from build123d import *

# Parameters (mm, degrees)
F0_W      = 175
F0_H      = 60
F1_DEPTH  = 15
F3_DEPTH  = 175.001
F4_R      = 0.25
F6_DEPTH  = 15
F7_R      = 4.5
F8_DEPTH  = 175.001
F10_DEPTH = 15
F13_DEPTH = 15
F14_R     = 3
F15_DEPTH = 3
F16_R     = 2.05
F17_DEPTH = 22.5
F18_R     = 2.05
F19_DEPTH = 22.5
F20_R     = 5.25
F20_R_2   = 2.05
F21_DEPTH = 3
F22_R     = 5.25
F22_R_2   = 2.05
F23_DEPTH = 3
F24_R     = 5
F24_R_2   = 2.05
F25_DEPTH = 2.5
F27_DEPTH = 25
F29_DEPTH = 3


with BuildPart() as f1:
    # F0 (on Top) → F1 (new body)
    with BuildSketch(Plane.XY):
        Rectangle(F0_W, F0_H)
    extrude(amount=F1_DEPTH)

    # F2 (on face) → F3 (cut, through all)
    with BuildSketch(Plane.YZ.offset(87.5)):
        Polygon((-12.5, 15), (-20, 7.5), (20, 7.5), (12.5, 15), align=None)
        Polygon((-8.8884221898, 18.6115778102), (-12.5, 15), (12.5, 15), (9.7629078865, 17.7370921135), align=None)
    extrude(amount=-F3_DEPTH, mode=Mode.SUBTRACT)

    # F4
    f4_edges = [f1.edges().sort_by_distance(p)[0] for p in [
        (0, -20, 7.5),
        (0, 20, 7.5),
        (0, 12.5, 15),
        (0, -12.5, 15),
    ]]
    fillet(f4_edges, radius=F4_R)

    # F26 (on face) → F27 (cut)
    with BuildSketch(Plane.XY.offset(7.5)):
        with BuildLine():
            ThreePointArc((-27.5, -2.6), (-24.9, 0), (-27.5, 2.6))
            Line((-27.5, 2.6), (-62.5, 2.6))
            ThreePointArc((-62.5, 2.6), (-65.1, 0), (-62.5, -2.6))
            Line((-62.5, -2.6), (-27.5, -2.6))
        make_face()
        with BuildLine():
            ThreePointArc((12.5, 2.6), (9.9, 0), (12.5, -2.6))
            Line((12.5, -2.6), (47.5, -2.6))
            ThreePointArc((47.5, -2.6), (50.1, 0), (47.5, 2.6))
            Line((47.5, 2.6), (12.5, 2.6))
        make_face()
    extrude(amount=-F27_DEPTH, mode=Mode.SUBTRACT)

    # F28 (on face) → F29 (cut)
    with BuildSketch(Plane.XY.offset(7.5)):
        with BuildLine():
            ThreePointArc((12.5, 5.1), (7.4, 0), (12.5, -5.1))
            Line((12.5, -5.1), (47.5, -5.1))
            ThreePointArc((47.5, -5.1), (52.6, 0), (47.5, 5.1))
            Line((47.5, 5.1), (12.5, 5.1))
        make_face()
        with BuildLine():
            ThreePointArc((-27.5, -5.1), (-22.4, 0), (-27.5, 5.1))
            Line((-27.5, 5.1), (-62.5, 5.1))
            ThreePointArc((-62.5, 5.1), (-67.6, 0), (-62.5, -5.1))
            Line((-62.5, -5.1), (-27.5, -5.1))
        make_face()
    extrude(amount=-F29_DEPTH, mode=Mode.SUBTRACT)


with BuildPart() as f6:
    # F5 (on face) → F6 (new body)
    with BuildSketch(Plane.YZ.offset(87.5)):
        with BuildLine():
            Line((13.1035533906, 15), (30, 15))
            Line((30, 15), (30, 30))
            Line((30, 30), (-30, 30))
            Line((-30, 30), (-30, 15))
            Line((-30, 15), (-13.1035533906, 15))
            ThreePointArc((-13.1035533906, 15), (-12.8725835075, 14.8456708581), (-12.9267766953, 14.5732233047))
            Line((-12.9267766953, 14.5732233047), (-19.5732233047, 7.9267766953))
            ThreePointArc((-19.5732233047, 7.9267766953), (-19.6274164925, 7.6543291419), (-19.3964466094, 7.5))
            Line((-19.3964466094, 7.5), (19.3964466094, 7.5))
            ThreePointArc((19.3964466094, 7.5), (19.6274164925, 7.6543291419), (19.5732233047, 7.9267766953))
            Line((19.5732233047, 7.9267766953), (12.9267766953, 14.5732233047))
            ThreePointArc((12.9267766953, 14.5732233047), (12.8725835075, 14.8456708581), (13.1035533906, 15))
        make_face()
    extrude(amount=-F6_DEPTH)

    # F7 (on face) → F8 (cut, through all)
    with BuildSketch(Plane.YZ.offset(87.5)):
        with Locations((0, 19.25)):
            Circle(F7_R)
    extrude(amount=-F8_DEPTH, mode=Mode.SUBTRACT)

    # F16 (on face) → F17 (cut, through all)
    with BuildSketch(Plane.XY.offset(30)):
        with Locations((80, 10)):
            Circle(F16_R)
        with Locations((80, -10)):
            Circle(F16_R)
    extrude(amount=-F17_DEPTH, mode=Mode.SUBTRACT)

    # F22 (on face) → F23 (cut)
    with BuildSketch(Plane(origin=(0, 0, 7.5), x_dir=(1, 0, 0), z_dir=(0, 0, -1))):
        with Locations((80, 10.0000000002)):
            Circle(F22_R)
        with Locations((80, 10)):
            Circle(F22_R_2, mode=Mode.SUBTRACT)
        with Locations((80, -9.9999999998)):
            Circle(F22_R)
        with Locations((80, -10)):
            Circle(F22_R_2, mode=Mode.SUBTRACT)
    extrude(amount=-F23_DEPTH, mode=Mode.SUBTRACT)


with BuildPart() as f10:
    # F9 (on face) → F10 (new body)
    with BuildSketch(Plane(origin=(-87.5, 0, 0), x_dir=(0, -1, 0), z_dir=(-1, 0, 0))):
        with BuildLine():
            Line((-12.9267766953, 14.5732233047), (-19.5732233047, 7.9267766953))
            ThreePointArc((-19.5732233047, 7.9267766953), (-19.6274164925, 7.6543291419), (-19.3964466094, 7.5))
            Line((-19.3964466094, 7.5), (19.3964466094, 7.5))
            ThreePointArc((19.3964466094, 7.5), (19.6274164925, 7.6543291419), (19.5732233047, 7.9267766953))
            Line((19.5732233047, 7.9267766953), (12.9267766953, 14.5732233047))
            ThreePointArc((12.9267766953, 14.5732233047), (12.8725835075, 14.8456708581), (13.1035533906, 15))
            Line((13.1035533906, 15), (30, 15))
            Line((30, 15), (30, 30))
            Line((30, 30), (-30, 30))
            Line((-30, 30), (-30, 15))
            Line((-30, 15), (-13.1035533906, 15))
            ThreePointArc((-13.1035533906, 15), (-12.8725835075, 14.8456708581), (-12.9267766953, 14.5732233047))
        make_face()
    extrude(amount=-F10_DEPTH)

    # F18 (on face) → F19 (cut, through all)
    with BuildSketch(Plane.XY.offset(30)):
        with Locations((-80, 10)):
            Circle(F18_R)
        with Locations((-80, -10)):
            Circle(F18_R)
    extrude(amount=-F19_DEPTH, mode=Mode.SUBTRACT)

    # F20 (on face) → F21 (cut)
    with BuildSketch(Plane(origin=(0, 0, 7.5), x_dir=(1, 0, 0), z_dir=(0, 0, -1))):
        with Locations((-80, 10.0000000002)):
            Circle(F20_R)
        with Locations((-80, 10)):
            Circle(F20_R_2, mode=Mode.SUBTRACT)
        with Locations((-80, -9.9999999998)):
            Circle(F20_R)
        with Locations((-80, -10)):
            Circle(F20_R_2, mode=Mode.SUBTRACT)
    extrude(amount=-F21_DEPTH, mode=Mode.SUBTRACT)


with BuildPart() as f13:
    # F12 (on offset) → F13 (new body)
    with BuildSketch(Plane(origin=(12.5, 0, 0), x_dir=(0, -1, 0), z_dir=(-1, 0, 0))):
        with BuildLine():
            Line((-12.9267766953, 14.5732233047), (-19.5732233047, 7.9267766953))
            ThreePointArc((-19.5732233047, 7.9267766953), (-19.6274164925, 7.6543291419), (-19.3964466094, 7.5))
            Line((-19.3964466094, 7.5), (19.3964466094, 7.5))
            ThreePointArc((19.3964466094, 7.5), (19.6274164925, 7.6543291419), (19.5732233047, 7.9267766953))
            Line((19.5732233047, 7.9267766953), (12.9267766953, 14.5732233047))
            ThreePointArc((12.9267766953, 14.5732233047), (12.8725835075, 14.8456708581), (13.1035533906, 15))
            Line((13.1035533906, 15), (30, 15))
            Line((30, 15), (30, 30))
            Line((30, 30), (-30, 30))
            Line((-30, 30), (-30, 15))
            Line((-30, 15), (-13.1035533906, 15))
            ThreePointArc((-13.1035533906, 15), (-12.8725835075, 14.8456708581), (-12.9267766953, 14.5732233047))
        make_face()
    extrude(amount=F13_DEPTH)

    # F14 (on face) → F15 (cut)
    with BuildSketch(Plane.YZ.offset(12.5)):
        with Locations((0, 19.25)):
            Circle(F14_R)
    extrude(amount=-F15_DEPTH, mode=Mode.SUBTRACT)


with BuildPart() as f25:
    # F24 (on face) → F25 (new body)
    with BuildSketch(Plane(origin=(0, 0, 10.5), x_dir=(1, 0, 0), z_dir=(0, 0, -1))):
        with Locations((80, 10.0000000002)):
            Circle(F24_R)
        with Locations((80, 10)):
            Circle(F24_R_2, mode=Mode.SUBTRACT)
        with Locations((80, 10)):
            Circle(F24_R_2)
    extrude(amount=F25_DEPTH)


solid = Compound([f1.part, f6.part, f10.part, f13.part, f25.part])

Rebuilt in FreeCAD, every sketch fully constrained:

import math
import FreeCAD as App
import Part
import Sketcher
Q = App.Units.Quantity


def edges_at(feature, points):
    """Names of the edges that pass closest to the given points."""
    edges = feature.Shape.Edges
    near = lambda p: min(range(len(edges)), key=lambda i: edges[i].distToShape(Part.Vertex(*p))[0])
    return sorted({f"Edge{near(p) + 1}" for p in points})


def add_polygon(sketch, points):
    """Adds a closed chain of lines whose ends are joined by coincident constraints."""
    first, n = sketch.GeometryCount, len(points)
    for a, b in zip(points, points[1:] + points[:1]):
        sketch.addGeometry(Part.LineSegment(App.Vector(*a, 0), App.Vector(*b, 0)), False)
    for i in range(n):
        sketch.addConstraint(Sketcher.Constraint("Coincident", first + i, 2, first + (i + 1) % n, 1))

doc = App.newDocument("Part")
params = doc.addObject("Spreadsheet::Sheet", "Params")
for row, (alias, value) in enumerate([
    ("sketch1_width", "175 mm"),
    ("sketch1_height", "60 mm"),
    ("pad1_length", "15 mm"),
    ("sketch2_width", "40 mm"),
    ("fillet_radius", "0.25 mm"),
    ("sketch3_radius", "2.6 mm"),
    ("sketch3_width", "35 mm"),
    ("pocket2_length", "25 mm"),
    ("sketch4_radius", "5.1 mm"),
    ("sketch4_width", "35 mm"),
    ("pocket3_length", "3 mm"),
    ("sketch5_width", "60 mm"),
    ("sketch5_height", "15 mm"),
    ("sketch5_radius", "0.25 mm"),
    ("pad2_length", "15 mm"),
    ("sketch6_diameter", "9 mm"),
    ("sketch7_diameter", "4.1 mm"),
    ("sketch8_diameter", "10.5 mm"),
    ("sketch8_diameter2", "4.1 mm"),
    ("pocket6_length", "3 mm"),
    ("sketch9_width", "60 mm"),
    ("sketch9_height", "15 mm"),
    ("sketch9_radius", "0.25 mm"),
    ("pad3_length", "15 mm"),
    ("sketch10_diameter", "4.1 mm"),
    ("sketch11_diameter", "10.5 mm"),
    ("sketch11_diameter2", "4.1 mm"),
    ("pocket8_length", "3 mm"),
    ("sketch12_width", "60 mm"),
    ("sketch12_height", "15 mm"),
    ("sketch12_radius", "0.25 mm"),
    ("pad4_length", "15 mm"),
    ("sketch13_diameter", "6 mm"),
    ("pocket9_length", "3 mm"),
    ("sketch14_diameter", "10 mm"),
    ("pad5_length", "2.5 mm"),
], start=1):
    params.set(f"A{row}", alias)
    params.set(f"B{row}", "=" + value)
    params.setAlias(f"B{row}", alias)

body = doc.addObject("PartDesign::Body", "Body")

# Sketch on XY plane
sketch1 = body.newObject("Sketcher::SketchObject", "Sketch")
sketch1.AttachmentSupport = (doc.getObject("XY_Plane"), [""])
sketch1.MapMode = "FlatFace"
add_polygon(sketch1, [(-88, 30), (-88, -30), (88, -30), (88, 30)])  # lines 0-3
sketch1.addConstraint([
    Sketcher.Constraint("Vertical", 0),
    Sketcher.Constraint("Horizontal", 1),
    Sketcher.Constraint("Vertical", 2),
    Sketcher.Constraint("Horizontal", 3),
    Sketcher.Constraint("Symmetric", 0, 2, 2, 2, -1, 1),
    Sketcher.Constraint("DistanceX", 1, 1, 1, 2, Q("175 mm")),
    Sketcher.Constraint("DistanceY", 0, 2, 0, 1, Q("60 mm")),
])
sketch1.setExpression("Constraints[9]", "Params.sketch1_width")
sketch1.setExpression("Constraints[10]", "Params.sketch1_height")
pad1 = body.newObject("PartDesign::Pad", "Pad")
pad1.Profile = sketch1
pad1.setExpression("Length", "Params.pad1_length")

# Sketch on YZ plane
sketch2 = body.newObject("Sketcher::SketchObject", "Sketch001")
sketch2.AttachmentSupport = (doc.getObject("YZ_Plane"), [""])
sketch2.MapMode = "FlatFace"
sketch2.AttachmentOffset = App.Placement(App.Vector(0, 0, 87.5), App.Rotation())
add_polygon(sketch2, [(-20, 8), (20, 8), (10, 18), (-9, 19)])  # lines 0-3
sketch2.addConstraint([
    Sketcher.Constraint("Horizontal", 0),
    Sketcher.Constraint("Perpendicular", 1, 3),
    Sketcher.Constraint("DistanceX", 0, 1, 0, 2, Q("40 mm")),
    Sketcher.Constraint("Angle", 1, Q("135 deg")),
    Sketcher.Constraint("DistanceX", -1, 1, 0, 2, Q("20 mm")),
    Sketcher.Constraint("DistanceY", -1, 1, 0, 2, Q("7.5 mm")),
    Sketcher.Constraint("Distance", 2, Q("18.671819 mm")),
    Sketcher.Constraint("DistanceX", 2, 2, 1, 2, Q("18.65133 mm")),
])
sketch2.setExpression("Constraints[6]", "Params.sketch2_width")
pocket1 = body.newObject("PartDesign::Pocket", "Pocket")
pocket1.Profile = sketch2
pocket1.Type = "ThroughAll"
doc.recompute()

fillet = body.newObject("PartDesign::Fillet", "Fillet")
fillet.Base = (pocket1, edges_at(pocket1, [
    (0, -20, 7.5),
    (0, 20, 7.5),
    (0, 12.5, 15),
    (0, -12.5, 15),
]))
fillet.setExpression("Radius", "Params.fillet_radius")

# Sketch on XY plane
sketch3 = body.newObject("Sketcher::SketchObject", "Sketch002")
sketch3.AttachmentSupport = (doc.getObject("XY_Plane"), [""])
sketch3.MapMode = "FlatFace"
sketch3.AttachmentOffset = App.Placement(App.Vector(0, 0, 7.5), App.Rotation())
sketch3.addGeometry([
    Part.ArcOfCircle(Part.Circle(App.Vector(-27.5, 0, 0), App.Vector(0, 0, 1), 2.6), math.radians(-90), math.radians(90)),  # 0
    Part.LineSegment(App.Vector(-27.5, 2.6, 0), App.Vector(-62.5, 2.6, 0)),  # 1
    Part.ArcOfCircle(Part.Circle(App.Vector(-62.5, 0, 0), App.Vector(0, 0, 1), 2.6), math.radians(90), math.radians(270)),  # 2
    Part.LineSegment(App.Vector(-62.5, -2.6, 0), App.Vector(-27.5, -2.6, 0)),  # 3
    Part.ArcOfCircle(Part.Circle(App.Vector(12.5, 0, 0), App.Vector(0, 0, 1), 2.6), math.radians(90), math.radians(270)),  # 4
    Part.LineSegment(App.Vector(12.5, -2.6, 0), App.Vector(47.5, -2.6, 0)),  # 5
    Part.ArcOfCircle(Part.Circle(App.Vector(47.5, 0, 0), App.Vector(0, 0, 1), 2.6), math.radians(-90), math.radians(90)),  # 6
    Part.LineSegment(App.Vector(47.5, 2.6, 0), App.Vector(12.5, 2.6, 0)),  # 7
], False)
sketch3.addConstraint([
    Sketcher.Constraint("Tangent", 0, 2, 1, 1),
    Sketcher.Constraint("Tangent", 1, 2, 2, 1),
    Sketcher.Constraint("Tangent", 2, 2, 3, 1),
    Sketcher.Constraint("Tangent", 3, 2, 0, 1),
    Sketcher.Constraint("Tangent", 4, 2, 5, 1),
    Sketcher.Constraint("Tangent", 5, 2, 6, 1),
    Sketcher.Constraint("Tangent", 6, 2, 7, 1),
    Sketcher.Constraint("Tangent", 7, 2, 4, 1),
    Sketcher.Constraint("Horizontal", 1),
    Sketcher.Constraint("Horizontal", 3),
    Sketcher.Constraint("Horizontal", 5),
    Sketcher.Constraint("Horizontal", 7),
    Sketcher.Constraint("Equal", 2, 4),
    Sketcher.Constraint("PointOnObject", 0, 3, -1),
    Sketcher.Constraint("PointOnObject", 4, 3, -1),
    Sketcher.Constraint("Equal", 3, 5),
    Sketcher.Constraint("Radius", 0, Q("2.6 mm")),
    Sketcher.Constraint("DistanceX", 1, 2, 1, 1, Q("35 mm")),
    Sketcher.Constraint("DistanceX", 0, 3, 4, 3, Q("40 mm")),
    Sketcher.Constraint("DistanceX", 0, 3, -1, 1, Q("27.5 mm")),
])
sketch3.setExpression("Constraints[16]", "Params.sketch3_radius")
sketch3.setExpression("Constraints[17]", "Params.sketch3_width")
pocket2 = body.newObject("PartDesign::Pocket", "Pocket001")
pocket2.Profile = sketch3
pocket2.setExpression("Length", "Params.pocket2_length")

# Sketch on XY plane
sketch4 = body.newObject("Sketcher::SketchObject", "Sketch003")
sketch4.AttachmentSupport = (doc.getObject("XY_Plane"), [""])
sketch4.MapMode = "FlatFace"
sketch4.AttachmentOffset = App.Placement(App.Vector(0, 0, 7.5), App.Rotation())
sketch4.addGeometry([
    Part.ArcOfCircle(Part.Circle(App.Vector(12, 0, 0), App.Vector(0, 0, 1), 5), math.radians(90), math.radians(270)),  # 0
    Part.LineSegment(App.Vector(12, -5, 0), App.Vector(48, -5, 0)),  # 1
    Part.ArcOfCircle(Part.Circle(App.Vector(48, 0, 0), App.Vector(0, 0, 1), 5), math.radians(-90), math.radians(90)),  # 2
    Part.LineSegment(App.Vector(48, 5, 0), App.Vector(12, 5, 0)),  # 3
    Part.ArcOfCircle(Part.Circle(App.Vector(-28, 0, 0), App.Vector(0, 0, 1), 5), math.radians(-90), math.radians(90)),  # 4
    Part.LineSegment(App.Vector(-28, 5, 0), App.Vector(-62, 5, 0)),  # 5
    Part.ArcOfCircle(Part.Circle(App.Vector(-62, 0, 0), App.Vector(0, 0, 1), 5), math.radians(90), math.radians(270)),  # 6
    Part.LineSegment(App.Vector(-62, -5, 0), App.Vector(-28, -5, 0)),  # 7
], False)
sketch4.addConstraint([
    Sketcher.Constraint("Tangent", 0, 2, 1, 1),
    Sketcher.Constraint("Tangent", 1, 2, 2, 1),
    Sketcher.Constraint("Tangent", 2, 2, 3, 1),
    Sketcher.Constraint("Tangent", 3, 2, 0, 1),
    Sketcher.Constraint("Tangent", 4, 2, 5, 1),
    Sketcher.Constraint("Tangent", 5, 2, 6, 1),
    Sketcher.Constraint("Tangent", 6, 2, 7, 1),
    Sketcher.Constraint("Tangent", 7, 2, 4, 1),
    Sketcher.Constraint("Horizontal", 1),
    Sketcher.Constraint("Horizontal", 3),
    Sketcher.Constraint("Horizontal", 5),
    Sketcher.Constraint("Horizontal", 7),
    Sketcher.Constraint("Equal", 2, 4),
    Sketcher.Constraint("PointOnObject", 0, 3, -1),
    Sketcher.Constraint("PointOnObject", 4, 3, -1),
    Sketcher.Constraint("Equal", 3, 5),
    Sketcher.Constraint("Radius", 0, Q("5.1 mm")),
    Sketcher.Constraint("DistanceX", 1, 1, 1, 2, Q("35 mm")),
    Sketcher.Constraint("DistanceX", 4, 3, 0, 3, Q("40 mm")),
    Sketcher.Constraint("DistanceX", -1, 1, 0, 3, Q("12.5 mm")),
])
sketch4.setExpression("Constraints[16]", "Params.sketch4_radius")
sketch4.setExpression("Constraints[17]", "Params.sketch4_width")
pocket3 = body.newObject("PartDesign::Pocket", "Pocket002")
pocket3.Profile = sketch4
pocket3.setExpression("Length", "Params.pocket3_length")
body2 = doc.addObject("PartDesign::Body", "Body001")

# Sketch on YZ plane
sketch5 = body2.newObject("Sketcher::SketchObject", "Sketch004")
sketch5.AttachmentSupport = (doc.getObject("YZ_Plane001"), [""])
sketch5.MapMode = "FlatFace"
sketch5.AttachmentOffset = App.Placement(App.Vector(0, 0, 87.5), App.Rotation())
sketch5.addGeometry([
    Part.LineSegment(App.Vector(13.1, 15, 0), App.Vector(30, 15, 0)),  # 0
    Part.LineSegment(App.Vector(30, 15, 0), App.Vector(30, 30, 0)),  # 1
    Part.LineSegment(App.Vector(30, 30, 0), App.Vector(-30, 30, 0)),  # 2
    Part.LineSegment(App.Vector(-30, 30, 0), App.Vector(-30, 15, 0)),  # 3
    Part.LineSegment(App.Vector(-30, 15, 0), App.Vector(-13.1, 15, 0)),  # 4
    Part.ArcOfCircle(Part.Circle(App.Vector(-13.1, 14.75, 0), App.Vector(0, 0, 1), 0.25), math.radians(-45), math.radians(90)),  # 5
    Part.LineSegment(App.Vector(-12.93, 14.57, 0), App.Vector(-19.57, 7.93, 0)),  # 6
    Part.ArcOfCircle(Part.Circle(App.Vector(-19.4, 7.75, 0), App.Vector(0, 0, 1), 0.25), math.radians(135), math.radians(270)),  # 7
    Part.LineSegment(App.Vector(-19.4, 7.5, 0), App.Vector(19.4, 7.5, 0)),  # 8
    Part.ArcOfCircle(Part.Circle(App.Vector(19.4, 7.75, 0), App.Vector(0, 0, 1), 0.25), math.radians(-90), math.radians(45)),  # 9
    Part.LineSegment(App.Vector(19.57, 7.93, 0), App.Vector(12.93, 14.57, 0)),  # 10
    Part.ArcOfCircle(Part.Circle(App.Vector(13.1, 14.75, 0), App.Vector(0, 0, 1), 0.25), math.radians(90), math.radians(225)),  # 11
], False)
sketch5.addConstraint([
    Sketcher.Constraint("Coincident", 0, 2, 1, 1),
    Sketcher.Constraint("Coincident", 1, 2, 2, 1),
    Sketcher.Constraint("Coincident", 2, 2, 3, 1),
    Sketcher.Constraint("Coincident", 3, 2, 4, 1),
    Sketcher.Constraint("Tangent", 4, 2, 5, 2),
    Sketcher.Constraint("Tangent", 5, 1, 6, 1),
    Sketcher.Constraint("Tangent", 6, 2, 7, 1),
    Sketcher.Constraint("Tangent", 7, 2, 8, 1),
    Sketcher.Constraint("Tangent", 8, 2, 9, 1),
    Sketcher.Constraint("Tangent", 9, 2, 10, 1),
    Sketcher.Constraint("Tangent", 10, 2, 11, 2),
    Sketcher.Constraint("Tangent", 11, 1, 0, 1),
    Sketcher.Constraint("Horizontal", 0),
    Sketcher.Constraint("Vertical", 1),
    Sketcher.Constraint("Horizontal", 2),
    Sketcher.Constraint("Vertical", 3),
    Sketcher.Constraint("Horizontal", 4),
    Sketcher.Constraint("Horizontal", 8),
    Sketcher.Constraint("Equal", 5, 7),
    Sketcher.Constraint("Equal", 7, 9),
    Sketcher.Constraint("Equal", 9, 11),
    Sketcher.Constraint("Symmetric", 5, 3, 11, 3, -2),
    Sketcher.Constraint("Perpendicular", 6, 10),
    Sketcher.Constraint("Horizontal", 6, 2, 9, 2),
    Sketcher.Constraint("Equal", 0, 4),
    Sketcher.Constraint("DistanceX", 2, 2, 2, 1, Q("60 mm")),
    Sketcher.Constraint("DistanceY", 1, 1, 1, 2, Q("15 mm")),
    Sketcher.Constraint("Radius", 5, Q("0.25 mm")),
    Sketcher.Constraint("DistanceY", -1, 1, 0, 2, Q("15 mm")),
    Sketcher.Constraint("DistanceY", 7, 3, 5, 3, Q("7 mm")),
    Sketcher.Constraint("DistanceX", 5, 3, 9, 3, Q("32.5 mm")),
])
sketch5.setExpression("Constraints[25]", "Params.sketch5_width")
sketch5.setExpression("Constraints[26]", "Params.sketch5_height")
sketch5.setExpression("Constraints[27]", "Params.sketch5_radius")
pad2 = body2.newObject("PartDesign::Pad", "Pad001")
pad2.Profile = sketch5
pad2.setExpression("Length", "Params.pad2_length")
pad2.Reversed = True

# Sketch on YZ plane
sketch6 = body2.newObject("Sketcher::SketchObject", "Sketch005")
sketch6.AttachmentSupport = (doc.getObject("YZ_Plane001"), [""])
sketch6.MapMode = "FlatFace"
sketch6.AttachmentOffset = App.Placement(App.Vector(0, 0, 87.5), App.Rotation())
sketch6.addGeometry(Part.Circle(App.Vector(0, 19.2, 0), App.Vector(0, 0, 1), 4.5), False)
sketch6.addConstraint([
    Sketcher.Constraint("PointOnObject", 0, 3, -2),
    Sketcher.Constraint("Diameter", 0, Q("9 mm")),
    Sketcher.Constraint("DistanceY", -1, 1, 0, 3, Q("19.25 mm")),
])
sketch6.setExpression("Constraints[1]", "Params.sketch6_diameter")
pocket4 = body2.newObject("PartDesign::Pocket", "Pocket003")
pocket4.Profile = sketch6
pocket4.Type = "ThroughAll"

# Sketch on XY plane
sketch7 = body2.newObject("Sketcher::SketchObject", "Sketch006")
sketch7.AttachmentSupport = (doc.getObject("XY_Plane001"), [""])
sketch7.MapMode = "FlatFace"
sketch7.AttachmentOffset = App.Placement(App.Vector(0, 0, 30), App.Rotation())
sketch7.addGeometry([
    Part.Circle(App.Vector(80, 10, 0), App.Vector(0, 0, 1), 2),
    Part.Circle(App.Vector(80, -10, 0), App.Vector(0, 0, 1), 2),
], False)
sketch7.addConstraint([
    Sketcher.Constraint("Equal", 0, 1),
    Sketcher.Constraint("Symmetric", 0, 3, 1, 3, -1),
    Sketcher.Constraint("Diameter", 0, Q("4.1 mm")),
    Sketcher.Constraint("DistanceX", -1, 1, 0, 3, Q("80 mm")),
    Sketcher.Constraint("DistanceY", -1, 1, 0, 3, Q("10 mm")),
])
sketch7.setExpression("Constraints[2]", "Params.sketch7_diameter")
pocket5 = body2.newObject("PartDesign::Pocket", "Pocket004")
pocket5.Profile = sketch7
pocket5.Type = "ThroughAll"

# Sketch on XY plane
sketch8 = body2.newObject("Sketcher::SketchObject", "Sketch007")
sketch8.AttachmentSupport = (doc.getObject("XY_Plane001"), [""])
sketch8.MapMode = "FlatFace"
sketch8.AttachmentOffset = App.Placement(App.Vector(0, 0, 7.5), App.Rotation())
sketch8.addGeometry([
    Part.Circle(App.Vector(80, -10, 0), App.Vector(0, 0, 1), 5.2),
    Part.Circle(App.Vector(80, -10, 0), App.Vector(0, 0, 1), 2),
    Part.Circle(App.Vector(80, 10, 0), App.Vector(0, 0, 1), 5.2),
    Part.Circle(App.Vector(80, 10, 0), App.Vector(0, 0, 1), 2),
], False)
sketch8.addConstraint([
    Sketcher.Constraint("Coincident", 1, 3, 0, 3),
    Sketcher.Constraint("Coincident", 3, 3, 2, 3),
    Sketcher.Constraint("Equal", 0, 2),
    Sketcher.Constraint("Equal", 1, 3),
    Sketcher.Constraint("Symmetric", 0, 3, 2, 3, -1),
    Sketcher.Constraint("Diameter", 0, Q("10.5 mm")),
    Sketcher.Constraint("Diameter", 1, Q("4.1 mm")),
    Sketcher.Constraint("DistanceX", -1, 1, 0, 3, Q("80 mm")),
    Sketcher.Constraint("DistanceY", 0, 3, -1, 1, Q("10 mm")),
])
sketch8.setExpression("Constraints[5]", "Params.sketch8_diameter")
sketch8.setExpression("Constraints[6]", "Params.sketch8_diameter2")
pocket6 = body2.newObject("PartDesign::Pocket", "Pocket005")
pocket6.Profile = sketch8
pocket6.setExpression("Length", "Params.pocket6_length")
pocket6.Reversed = True
body3 = doc.addObject("PartDesign::Body", "Body002")

# Sketch on YZ plane
sketch9 = body3.newObject("Sketcher::SketchObject", "Sketch008")
sketch9.AttachmentSupport = (doc.getObject("YZ_Plane002"), [""])
sketch9.MapMode = "FlatFace"
sketch9.AttachmentOffset = App.Placement(App.Vector(0, 0, -87.5), App.Rotation())
sketch9.addGeometry([
    Part.LineSegment(App.Vector(12.93, 14.57, 0), App.Vector(19.57, 7.93, 0)),  # 0
    Part.ArcOfCircle(Part.Circle(App.Vector(19.4, 7.75, 0), App.Vector(0, 0, 1), 0.25), math.radians(-90), math.radians(45)),  # 1
    Part.LineSegment(App.Vector(19.4, 7.5, 0), App.Vector(-19.4, 7.5, 0)),  # 2
    Part.ArcOfCircle(Part.Circle(App.Vector(-19.4, 7.75, 0), App.Vector(0, 0, 1), 0.25), math.radians(135), math.radians(270)),  # 3
    Part.LineSegment(App.Vector(-19.57, 7.93, 0), App.Vector(-12.93, 14.57, 0)),  # 4
    Part.ArcOfCircle(Part.Circle(App.Vector(-13.1, 14.75, 0), App.Vector(0, 0, 1), 0.25), math.radians(-45), math.radians(90)),  # 5
    Part.LineSegment(App.Vector(-13.1, 15, 0), App.Vector(-30, 15, 0)),  # 6
    Part.LineSegment(App.Vector(-30, 15, 0), App.Vector(-30, 30, 0)),  # 7
    Part.LineSegment(App.Vector(-30, 30, 0), App.Vector(30, 30, 0)),  # 8
    Part.LineSegment(App.Vector(30, 30, 0), App.Vector(30, 15, 0)),  # 9
    Part.LineSegment(App.Vector(30, 15, 0), App.Vector(13.1, 15, 0)),  # 10
    Part.ArcOfCircle(Part.Circle(App.Vector(13.1, 14.75, 0), App.Vector(0, 0, 1), 0.25), math.radians(90), math.radians(225)),  # 11
], False)
sketch9.addConstraint([
    Sketcher.Constraint("Tangent", 0, 2, 1, 2),
    Sketcher.Constraint("Tangent", 1, 1, 2, 1),
    Sketcher.Constraint("Tangent", 2, 2, 3, 2),
    Sketcher.Constraint("Tangent", 3, 1, 4, 1),
    Sketcher.Constraint("Tangent", 4, 2, 5, 1),
    Sketcher.Constraint("Tangent", 5, 2, 6, 1),
    Sketcher.Constraint("Coincident", 6, 2, 7, 1),
    Sketcher.Constraint("Coincident", 7, 2, 8, 1),
    Sketcher.Constraint("Coincident", 8, 2, 9, 1),
    Sketcher.Constraint("Coincident", 9, 2, 10, 1),
    Sketcher.Constraint("Tangent", 10, 2, 11, 1),
    Sketcher.Constraint("Tangent", 11, 2, 0, 1),
    Sketcher.Constraint("Horizontal", 2),
    Sketcher.Constraint("Horizontal", 6),
    Sketcher.Constraint("Vertical", 7),
    Sketcher.Constraint("Horizontal", 8),
    Sketcher.Constraint("Vertical", 9),
    Sketcher.Constraint("Horizontal", 10),
    Sketcher.Constraint("Equal", 1, 3),
    Sketcher.Constraint("Equal", 3, 5),
    Sketcher.Constraint("Equal", 5, 11),
    Sketcher.Constraint("Symmetric", 5, 3, 11, 3, -2),
    Sketcher.Constraint("Perpendicular", 0, 4),
    Sketcher.Constraint("Horizontal", 0, 2, 3, 1),
    Sketcher.Constraint("Equal", 6, 10),
    Sketcher.Constraint("DistanceX", 8, 1, 8, 2, Q("60 mm")),
    Sketcher.Constraint("DistanceY", 7, 1, 7, 2, Q("15 mm")),
    Sketcher.Constraint("Radius", 1, Q("0.25 mm")),
    Sketcher.Constraint("DistanceY", -1, 1, 5, 2, Q("15 mm")),
    Sketcher.Constraint("DistanceY", 3, 3, 5, 3, Q("7 mm")),
    Sketcher.Constraint("DistanceX", 5, 3, 1, 3, Q("32.5 mm")),
])
sketch9.setExpression("Constraints[25]", "Params.sketch9_width")
sketch9.setExpression("Constraints[26]", "Params.sketch9_height")
sketch9.setExpression("Constraints[27]", "Params.sketch9_radius")
pad3 = body3.newObject("PartDesign::Pad", "Pad002")
pad3.Profile = sketch9
pad3.setExpression("Length", "Params.pad3_length")

# Sketch on XY plane
sketch10 = body3.newObject("Sketcher::SketchObject", "Sketch009")
sketch10.AttachmentSupport = (doc.getObject("XY_Plane002"), [""])
sketch10.MapMode = "FlatFace"
sketch10.AttachmentOffset = App.Placement(App.Vector(0, 0, 30), App.Rotation())
sketch10.addGeometry([
    Part.Circle(App.Vector(-80, 10, 0), App.Vector(0, 0, 1), 2),
    Part.Circle(App.Vector(-80, -10, 0), App.Vector(0, 0, 1), 2),
], False)
sketch10.addConstraint([
    Sketcher.Constraint("Equal", 0, 1),
    Sketcher.Constraint("Symmetric", 0, 3, 1, 3, -1),
    Sketcher.Constraint("Diameter", 0, Q("4.1 mm")),
    Sketcher.Constraint("DistanceX", 0, 3, -1, 1, Q("80 mm")),
    Sketcher.Constraint("DistanceY", -1, 1, 0, 3, Q("10 mm")),
])
sketch10.setExpression("Constraints[2]", "Params.sketch10_diameter")
pocket7 = body3.newObject("PartDesign::Pocket", "Pocket006")
pocket7.Profile = sketch10
pocket7.Type = "ThroughAll"

# Sketch on XY plane
sketch11 = body3.newObject("Sketcher::SketchObject", "Sketch010")
sketch11.AttachmentSupport = (doc.getObject("XY_Plane002"), [""])
sketch11.MapMode = "FlatFace"
sketch11.AttachmentOffset = App.Placement(App.Vector(0, 0, 7.5), App.Rotation())
sketch11.addGeometry([
    Part.Circle(App.Vector(-80, -10, 0), App.Vector(0, 0, 1), 5.2),
    Part.Circle(App.Vector(-80, -10, 0), App.Vector(0, 0, 1), 2),
    Part.Circle(App.Vector(-80, 10, 0), App.Vector(0, 0, 1), 5.2),
    Part.Circle(App.Vector(-80, 10, 0), App.Vector(0, 0, 1), 2),
], False)
sketch11.addConstraint([
    Sketcher.Constraint("Coincident", 1, 3, 0, 3),
    Sketcher.Constraint("Coincident", 3, 3, 2, 3),
    Sketcher.Constraint("Equal", 0, 2),
    Sketcher.Constraint("Equal", 1, 3),
    Sketcher.Constraint("Symmetric", 0, 3, 2, 3, -1),
    Sketcher.Constraint("Diameter", 0, Q("10.5 mm")),
    Sketcher.Constraint("Diameter", 1, Q("4.1 mm")),
    Sketcher.Constraint("DistanceX", 0, 3, -1, 1, Q("80 mm")),
    Sketcher.Constraint("DistanceY", 0, 3, -1, 1, Q("10 mm")),
])
sketch11.setExpression("Constraints[5]", "Params.sketch11_diameter")
sketch11.setExpression("Constraints[6]", "Params.sketch11_diameter2")
pocket8 = body3.newObject("PartDesign::Pocket", "Pocket007")
pocket8.Profile = sketch11
pocket8.setExpression("Length", "Params.pocket8_length")
pocket8.Reversed = True
body4 = doc.addObject("PartDesign::Body", "Body003")

# Sketch on YZ plane
sketch12 = body4.newObject("Sketcher::SketchObject", "Sketch011")
sketch12.AttachmentSupport = (doc.getObject("YZ_Plane003"), [""])
sketch12.MapMode = "FlatFace"
sketch12.AttachmentOffset = App.Placement(App.Vector(0, 0, 12.5), App.Rotation())
sketch12.addGeometry([
    Part.LineSegment(App.Vector(12.93, 14.57, 0), App.Vector(19.57, 7.93, 0)),  # 0
    Part.ArcOfCircle(Part.Circle(App.Vector(19.4, 7.75, 0), App.Vector(0, 0, 1), 0.25), math.radians(-90), math.radians(45)),  # 1
    Part.LineSegment(App.Vector(19.4, 7.5, 0), App.Vector(-19.4, 7.5, 0)),  # 2
    Part.ArcOfCircle(Part.Circle(App.Vector(-19.4, 7.75, 0), App.Vector(0, 0, 1), 0.25), math.radians(135), math.radians(270)),  # 3
    Part.LineSegment(App.Vector(-19.57, 7.93, 0), App.Vector(-12.93, 14.57, 0)),  # 4
    Part.ArcOfCircle(Part.Circle(App.Vector(-13.1, 14.75, 0), App.Vector(0, 0, 1), 0.25), math.radians(-45), math.radians(90)),  # 5
    Part.LineSegment(App.Vector(-13.1, 15, 0), App.Vector(-30, 15, 0)),  # 6
    Part.LineSegment(App.Vector(-30, 15, 0), App.Vector(-30, 30, 0)),  # 7
    Part.LineSegment(App.Vector(-30, 30, 0), App.Vector(30, 30, 0)),  # 8
    Part.LineSegment(App.Vector(30, 30, 0), App.Vector(30, 15, 0)),  # 9
    Part.LineSegment(App.Vector(30, 15, 0), App.Vector(13.1, 15, 0)),  # 10
    Part.ArcOfCircle(Part.Circle(App.Vector(13.1, 14.75, 0), App.Vector(0, 0, 1), 0.25), math.radians(90), math.radians(225)),  # 11
], False)
sketch12.addConstraint([
    Sketcher.Constraint("Tangent", 0, 2, 1, 2),
    Sketcher.Constraint("Tangent", 1, 1, 2, 1),
    Sketcher.Constraint("Tangent", 2, 2, 3, 2),
    Sketcher.Constraint("Tangent", 3, 1, 4, 1),
    Sketcher.Constraint("Tangent", 4, 2, 5, 1),
    Sketcher.Constraint("Tangent", 5, 2, 6, 1),
    Sketcher.Constraint("Coincident", 6, 2, 7, 1),
    Sketcher.Constraint("Coincident", 7, 2, 8, 1),
    Sketcher.Constraint("Coincident", 8, 2, 9, 1),
    Sketcher.Constraint("Coincident", 9, 2, 10, 1),
    Sketcher.Constraint("Tangent", 10, 2, 11, 1),
    Sketcher.Constraint("Tangent", 11, 2, 0, 1),
    Sketcher.Constraint("Horizontal", 2),
    Sketcher.Constraint("Horizontal", 6),
    Sketcher.Constraint("Vertical", 7),
    Sketcher.Constraint("Horizontal", 8),
    Sketcher.Constraint("Vertical", 9),
    Sketcher.Constraint("Horizontal", 10),
    Sketcher.Constraint("Equal", 1, 3),
    Sketcher.Constraint("Equal", 3, 5),
    Sketcher.Constraint("Equal", 5, 11),
    Sketcher.Constraint("Symmetric", 5, 3, 11, 3, -2),
    Sketcher.Constraint("Perpendicular", 0, 4),
    Sketcher.Constraint("Horizontal", 0, 2, 3, 1),
    Sketcher.Constraint("Equal", 6, 10),
    Sketcher.Constraint("DistanceX", 8, 1, 8, 2, Q("60 mm")),
    Sketcher.Constraint("DistanceY", 7, 1, 7, 2, Q("15 mm")),
    Sketcher.Constraint("Radius", 1, Q("0.25 mm")),
    Sketcher.Constraint("DistanceY", -1, 1, 5, 2, Q("15 mm")),
    Sketcher.Constraint("DistanceY", 3, 3, 5, 3, Q("7 mm")),
    Sketcher.Constraint("DistanceX", 5, 3, 1, 3, Q("32.5 mm")),
])
sketch12.setExpression("Constraints[25]", "Params.sketch12_width")
sketch12.setExpression("Constraints[26]", "Params.sketch12_height")
sketch12.setExpression("Constraints[27]", "Params.sketch12_radius")
pad4 = body4.newObject("PartDesign::Pad", "Pad003")
pad4.Profile = sketch12
pad4.setExpression("Length", "Params.pad4_length")
pad4.Reversed = True

# Sketch on YZ plane
sketch13 = body4.newObject("Sketcher::SketchObject", "Sketch012")
sketch13.AttachmentSupport = (doc.getObject("YZ_Plane003"), [""])
sketch13.MapMode = "FlatFace"
sketch13.AttachmentOffset = App.Placement(App.Vector(0, 0, 12.5), App.Rotation())
sketch13.addGeometry(Part.Circle(App.Vector(0, 19.2, 0), App.Vector(0, 0, 1), 3), False)
sketch13.addConstraint([
    Sketcher.Constraint("PointOnObject", 0, 3, -2),
    Sketcher.Constraint("Diameter", 0, Q("6 mm")),
    Sketcher.Constraint("DistanceY", -1, 1, 0, 3, Q("19.25 mm")),
])
sketch13.setExpression("Constraints[1]", "Params.sketch13_diameter")
pocket9 = body4.newObject("PartDesign::Pocket", "Pocket008")
pocket9.Profile = sketch13
pocket9.setExpression("Length", "Params.pocket9_length")
body5 = doc.addObject("PartDesign::Body", "Body004")

# Sketch on XY plane
sketch14 = body5.newObject("Sketcher::SketchObject", "Sketch013")
sketch14.AttachmentSupport = (doc.getObject("XY_Plane004"), [""])
sketch14.MapMode = "FlatFace"
sketch14.AttachmentOffset = App.Placement(App.Vector(0, 0, 10.5), App.Rotation())
sketch14.addGeometry(Part.Circle(App.Vector(80, -10, 0), App.Vector(0, 0, 1), 5), False)
sketch14.addConstraint([
    Sketcher.Constraint("Diameter", 0, Q("10 mm")),
    Sketcher.Constraint("DistanceX", -1, 1, 0, 3, Q("80 mm")),
    Sketcher.Constraint("DistanceY", 0, 3, -1, 1, Q("10 mm")),
])
sketch14.setExpression("Constraints[0]", "Params.sketch14_diameter")
pad5 = body5.newObject("PartDesign::Pad", "Pad004")
pad5.Profile = sketch14
pad5.setExpression("Length", "Params.pad5_length")
pad5.Reversed = True

doc.recompute()
